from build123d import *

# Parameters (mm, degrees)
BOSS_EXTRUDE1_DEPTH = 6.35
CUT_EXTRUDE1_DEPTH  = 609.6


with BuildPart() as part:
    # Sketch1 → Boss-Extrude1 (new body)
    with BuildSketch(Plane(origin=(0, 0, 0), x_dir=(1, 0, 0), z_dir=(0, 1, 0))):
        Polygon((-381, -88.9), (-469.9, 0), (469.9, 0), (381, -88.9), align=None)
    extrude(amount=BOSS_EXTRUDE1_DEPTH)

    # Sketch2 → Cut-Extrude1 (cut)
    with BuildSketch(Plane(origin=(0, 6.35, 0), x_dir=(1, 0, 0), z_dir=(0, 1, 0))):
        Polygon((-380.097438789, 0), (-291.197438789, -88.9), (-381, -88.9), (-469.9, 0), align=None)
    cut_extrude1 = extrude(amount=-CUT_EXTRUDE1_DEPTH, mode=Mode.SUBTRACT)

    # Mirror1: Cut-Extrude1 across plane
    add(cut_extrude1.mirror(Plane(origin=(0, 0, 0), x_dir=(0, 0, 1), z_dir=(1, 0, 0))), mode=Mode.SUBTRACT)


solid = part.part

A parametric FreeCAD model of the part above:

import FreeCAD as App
import Part
import Sketcher
from FreeCAD import Vector
Q = App.Units.Quantity

doc = App.newDocument("Part")
body = doc.addObject("PartDesign::Body", "Body")

sketch1 = doc.addObject("Sketcher::SketchObject", "Sketch")
body.addObject(sketch1)
sketch1.AttachmentSupport = (doc.XZ_Plane, [""])
sketch1.MapMode = "FlatFace"
sketch1.addGeometry([
    Part.LineSegment(Vector(-470, 0, 0), Vector(-381, 89, 0)),
    Part.LineSegment(Vector(-381, 89, 0), Vector(381, 89, 0)),
    Part.LineSegment(Vector(381, 89, 0), Vector(470, 0, 0)),
    Part.LineSegment(Vector(470, 0, 0), Vector(-470, 0, 0)),
], False)
sketch1.addConstraint([
    Sketcher.Constraint("Coincident", 0, 2, 1, 1),
    Sketcher.Constraint("Coincident", 1, 2, 2, 1),
    Sketcher.Constraint("Coincident", 2, 2, 3, 1),
    Sketcher.Constraint("Coincident", 3, 2, 0, 1),
    Sketcher.Constraint("Horizontal", 1),
    Sketcher.Constraint("Horizontal", 3),
    Sketcher.Constraint("Symmetric", 2, 2, 3, 2, -1, 1),
    Sketcher.Constraint("Perpendicular", 0, 2),
    Sketcher.Constraint("Equal", 0, 2),
    Sketcher.Constraint("DistanceX", 1, 1, 1, 2, Q("30 in")),
    Sketcher.Constraint("DistanceX", 3, 2, 3, 1, Q("37 in")),
])
pad1 = doc.addObject("PartDesign::Pad", "Pad")
body.addObject(pad1)
pad1.Profile = sketch1
pad1.Length = Q("0.25 in")
pad1.Reversed = True

sketch2 = doc.addObject("Sketcher::SketchObject", "Sketch001")
body.addObject(sketch2)
sketch2.AttachmentSupport = (doc.XZ_Plane, [""])
sketch2.MapMode = "FlatFace"
sketch2.AttachmentOffset = App.Placement(Vector(0, 0, -0.25 * 25.4), App.Rotation())
sketch2.addGeometry([
    Part.LineSegment(Vector(-291, 89, 0), Vector(-380, 0, 0)),
    Part.LineSegment(Vector(-380, 0, 0), Vector(-470, 0, 0)),
    Part.LineSegment(Vector(-470, 0, 0), Vector(-381, 89, 0)),
    Part.LineSegment(Vector(-381, 89, 0), Vector(-291, 89, 0)),
], False)
sketch2.addConstraint([
    Sketcher.Constraint("Coincident", 0, 2, 1, 1),
    Sketcher.Constraint("Coincident", 1, 2, 2, 1),
    Sketcher.Constraint("Coincident", 2, 2, 3, 1),
    Sketcher.Constraint("Coincident", 3, 2, 0, 1),
    Sketcher.Constraint("Horizontal", 1),
    Sketcher.Constraint("Horizontal", 3),
    Sketcher.Constraint("PointOnObject", 0, 2, -1),
    Sketcher.Constraint("Parallel", 0, 2),
    Sketcher.Constraint("DistanceX", 2, 2, -1, 1, Q("15 in")),
    Sketcher.Constraint("Angle", 0, Q("-135 deg")),
    Sketcher.Constraint("DistanceX", 1, 2, -1, 1, Q("18.5 in")),
    Sketcher.Constraint("DistanceX", 1, 2, 1, 1, Q("89.802561 mm")),
])
pocket1 = doc.addObject("PartDesign::Pocket", "Pocket")
body.addObject(pocket1)
pocket1.Profile = sketch2
pocket1.Length = Q("24 in")
pocket1.Reversed = True
doc.recompute()

mirrored = doc.addObject("PartDesign::Mirrored", "Mirrored")
body.addObject(mirrored)
mirrored.Originals = [pocket1]
mirrored.MirrorPlane = (doc.YZ_Plane, [""])
body.Tip = mirrored

doc.recompute()
